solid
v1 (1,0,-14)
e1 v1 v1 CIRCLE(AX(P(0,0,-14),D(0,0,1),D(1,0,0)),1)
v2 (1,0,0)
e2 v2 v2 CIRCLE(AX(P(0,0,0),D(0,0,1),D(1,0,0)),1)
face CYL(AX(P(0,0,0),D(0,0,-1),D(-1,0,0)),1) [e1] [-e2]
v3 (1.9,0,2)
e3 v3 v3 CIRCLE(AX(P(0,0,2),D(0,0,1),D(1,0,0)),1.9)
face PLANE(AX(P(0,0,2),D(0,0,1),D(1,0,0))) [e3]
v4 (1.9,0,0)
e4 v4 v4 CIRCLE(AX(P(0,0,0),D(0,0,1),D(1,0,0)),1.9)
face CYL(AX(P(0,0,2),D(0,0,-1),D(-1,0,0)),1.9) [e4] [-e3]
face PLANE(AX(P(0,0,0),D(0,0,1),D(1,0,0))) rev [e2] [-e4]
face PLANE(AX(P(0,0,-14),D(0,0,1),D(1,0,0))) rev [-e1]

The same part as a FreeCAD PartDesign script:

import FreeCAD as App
import Part
import Sketcher

V = App.Vector

doc = App.newDocument("Part")
params = doc.addObject("Spreadsheet::Sheet", "Params")
for row, (alias, value) in enumerate([
    ("sketch1_diameter", "2 mm"),
    ("pad1_length", "14 mm"),
    ("sketch2_diameter", "3.8 mm"),
    ("pad2_length", "2 mm"),
], start=1):
    params.set(f"A{row}", alias)
    params.set(f"B{row}", "=" + value)
    params.setAlias(f"B{row}", alias)

body = doc.addObject("PartDesign::Body", "Body")

sketch1 = body.newObject("Sketcher::SketchObject", "Sketch")
sketch1.AttachmentSupport = (doc.getObject("XY_Plane"), [""])
sketch1.MapMode = "FlatFace"
sketch1.AttachmentOffset = App.Placement(V(0, 0, -14), App.Rotation())
sketch1.addGeometry(Part.Circle(V(0, 0, 0), V(0, 0, 1), 1), False)
sketch1.addConstraint(Sketcher.Constraint("Coincident", 0, 3, -1, 1))
sketch1.addConstraint(Sketcher.Constraint("Diameter", 0, 2.0))
sketch1.setExpression("Constraints[1]", "Params.sketch1_diameter")
pad1 = body.newObject("PartDesign::Pad", "Pad")
pad1.Profile = sketch1
pad1.setExpression("Length", "Params.pad1_length")

sketch2 = body.newObject("Sketcher::SketchObject", "Sketch001")
sketch2.AttachmentSupport = (doc.getObject("XY_Plane"), [""])
sketch2.MapMode = "FlatFace"
sketch2.addGeometry(Part.Circle(V(0, 0, 0), V(0, 0, 1), 1.9), False)
sketch2.addConstraint(Sketcher.Constraint("Coincident", 0, 3, -1, 1))
sketch2.addConstraint(Sketcher.Constraint("Diameter", 0, 3.8))
sketch2.setExpression("Constraints[1]", "Params.sketch2_diameter")
pad2 = body.newObject("PartDesign::Pad", "Pad001")
pad2.Profile = sketch2
pad2.setExpression("Length", "Params.pad2_length")

doc.recompute()
